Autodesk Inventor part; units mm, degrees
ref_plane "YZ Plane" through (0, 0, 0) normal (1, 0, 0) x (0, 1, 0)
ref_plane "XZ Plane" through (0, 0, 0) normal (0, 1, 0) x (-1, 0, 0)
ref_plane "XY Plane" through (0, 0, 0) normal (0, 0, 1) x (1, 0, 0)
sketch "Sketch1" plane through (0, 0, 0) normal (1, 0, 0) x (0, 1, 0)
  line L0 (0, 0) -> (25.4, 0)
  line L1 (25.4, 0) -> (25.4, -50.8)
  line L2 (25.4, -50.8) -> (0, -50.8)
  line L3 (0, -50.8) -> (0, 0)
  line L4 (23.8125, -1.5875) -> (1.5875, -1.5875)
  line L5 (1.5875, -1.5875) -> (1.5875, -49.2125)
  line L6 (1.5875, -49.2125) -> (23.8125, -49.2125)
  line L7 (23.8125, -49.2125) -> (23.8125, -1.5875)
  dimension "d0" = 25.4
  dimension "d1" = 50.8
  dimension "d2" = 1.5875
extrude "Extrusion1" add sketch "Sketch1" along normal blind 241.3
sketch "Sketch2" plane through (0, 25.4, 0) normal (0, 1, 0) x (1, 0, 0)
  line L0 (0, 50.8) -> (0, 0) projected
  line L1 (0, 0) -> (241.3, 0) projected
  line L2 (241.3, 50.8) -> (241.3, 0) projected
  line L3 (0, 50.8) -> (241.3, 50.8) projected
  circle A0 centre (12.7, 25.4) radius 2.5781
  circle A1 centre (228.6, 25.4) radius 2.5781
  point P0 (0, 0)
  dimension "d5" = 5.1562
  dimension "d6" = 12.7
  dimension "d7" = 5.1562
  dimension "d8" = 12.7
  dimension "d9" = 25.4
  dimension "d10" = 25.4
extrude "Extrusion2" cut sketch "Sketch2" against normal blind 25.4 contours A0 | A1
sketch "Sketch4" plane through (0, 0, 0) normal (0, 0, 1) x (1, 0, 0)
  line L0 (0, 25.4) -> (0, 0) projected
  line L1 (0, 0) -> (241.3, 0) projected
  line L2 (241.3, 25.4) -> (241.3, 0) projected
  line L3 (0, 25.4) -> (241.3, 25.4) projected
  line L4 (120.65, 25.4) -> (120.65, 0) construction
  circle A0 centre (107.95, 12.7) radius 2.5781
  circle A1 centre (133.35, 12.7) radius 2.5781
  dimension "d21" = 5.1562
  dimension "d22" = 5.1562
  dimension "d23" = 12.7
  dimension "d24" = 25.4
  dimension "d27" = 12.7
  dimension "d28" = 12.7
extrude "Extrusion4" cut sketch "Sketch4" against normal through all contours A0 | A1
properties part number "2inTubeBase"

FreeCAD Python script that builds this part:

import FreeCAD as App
import Part
import Sketcher
Q = App.Units.Quantity

doc = App.newDocument("Part")
params = doc.addObject("Spreadsheet::Sheet", "Params")
for row, (alias, value) in enumerate([
    ("sketch1_width", "1 in"),
    ("sketch1_height", "2 in"),
    ("pad1_length", "9.5 in"),
    ("sketch2_diameter", "0.203 in"),
    ("pocket1_length", "1 in"),
    ("sketch3_diameter", "0.203 in"),
], start=1):
    params.set(f"A{row}", alias)
    params.set(f"B{row}", "=" + value)
    params.setAlias(f"B{row}", alias)

body = doc.addObject("PartDesign::Body", "Body")

sketch1 = body.newObject("Sketcher::SketchObject", "Sketch")
sketch1.AttachmentSupport = (doc.getObject("YZ_Plane"), [""])
sketch1.MapMode = "FlatFace"
sketch1.addGeometry([
    Part.LineSegment(App.Vector(25.4, 0, 0), App.Vector(0, 0, 0)),
    Part.LineSegment(App.Vector(0, 0, 0), App.Vector(0, -50.8, 0)),
    Part.LineSegment(App.Vector(0, -50.8, 0), App.Vector(25.4, -50.8, 0)),
    Part.LineSegment(App.Vector(25.4, -50.8, 0), App.Vector(25.4, 0, 0)),
    Part.LineSegment(App.Vector(1.5875, -1.5875, 0), App.Vector(23.8125, -1.5875, 0)),
    Part.LineSegment(App.Vector(23.8125, -1.5875, 0), App.Vector(23.8125, -49.2125, 0)),
    Part.LineSegment(App.Vector(23.8125, -49.2125, 0), App.Vector(1.5875, -49.2125, 0)),
    Part.LineSegment(App.Vector(1.5875, -49.2125, 0), App.Vector(1.5875, -1.5875, 0)),
], False)
sketch1.addConstraint([
    Sketcher.Constraint("Coincident", 0, 2, 1, 1),
    Sketcher.Constraint("Coincident", 1, 2, 2, 1),
    Sketcher.Constraint("Coincident", 2, 2, 3, 1),
    Sketcher.Constraint("Coincident", 3, 2, 0, 1),
    Sketcher.Constraint("Coincident", 4, 2, 5, 1),
    Sketcher.Constraint("Coincident", 5, 2, 6, 1),
    Sketcher.Constraint("Coincident", 6, 2, 7, 1),
    Sketcher.Constraint("Coincident", 7, 2, 4, 1),
    Sketcher.Constraint("Horizontal", 0),
    Sketcher.Constraint("Vertical", 1),
    Sketcher.Constraint("Horizontal", 2),
    Sketcher.Constraint("Vertical", 3),
    Sketcher.Constraint("Horizontal", 4),
    Sketcher.Constraint("Vertical", 5),
    Sketcher.Constraint("Horizontal", 6),
    Sketcher.Constraint("Vertical", 7),
    Sketcher.Constraint("Coincident", 0, 2, -1, 1),
    Sketcher.Constraint("DistanceX", 0, 2, 0, 1, Q("1 in")),
    Sketcher.Constraint("DistanceY", 1, 2, 1, 1, Q("2 in")),
    Sketcher.Constraint("DistanceY", 4, 2, -1, 1, Q("0.0625 in")),
    Sketcher.Constraint("DistanceX", -1, 1, 6, 2, Q("0.0625 in")),
    Sketcher.Constraint("DistanceX", 4, 2, 3, 2, Q("0.0625 in")),
    Sketcher.Constraint("DistanceY", 2, 2, 5, 2, Q("0.0625 in")),
])
sketch1.setExpression("Constraints[17]", "Params.sketch1_width")
sketch1.setExpression("Constraints[18]", "Params.sketch1_height")
pad1 = body.newObject("PartDesign::Pad", "Pad")
pad1.Profile = sketch1
pad1.setExpression("Length", "Params.pad1_length")

sketch2 = body.newObject("Sketcher::SketchObject", "Sketch001")
sketch2.AttachmentSupport = (doc.getObject("XZ_Plane"), [""])
sketch2.MapMode = "FlatFace"
sketch2.AttachmentOffset = App.Placement(App.Vector(0, 0, -1 * 25.4), App.Rotation())
sketch2.addGeometry([
    Part.Circle(App.Vector(12.7, -25.4, 0), App.Vector(0, 0, 1), 2.5781),
    Part.Circle(App.Vector(228.6, -25.4, 0), App.Vector(0, 0, 1), 2.5781),
], False)
sketch2.addConstraint([
    Sketcher.Constraint("Equal", 0, 1),
    Sketcher.Constraint("Horizontal", 0, 3, 1, 3),
    Sketcher.Constraint("Diameter", 0, Q("0.203 in")),
    Sketcher.Constraint("DistanceY", 0, 3, -1, 1, Q("1 in")),
    Sketcher.Constraint("DistanceX", -1, 1, 0, 3, Q("0.5 in")),
    Sketcher.Constraint("DistanceX", -1, 1, 1, 3, Q("9 in")),
])
sketch2.setExpression("Constraints[2]", "Params.sketch2_diameter")
pocket1 = body.newObject("PartDesign::Pocket", "Pocket")
pocket1.Profile = sketch2
pocket1.setExpression("Length", "Params.pocket1_length")
pocket1.Reversed = True

sketch3 = body.newObject("Sketcher::SketchObject", "Sketch002")
sketch3.AttachmentSupport = (doc.getObject("XY_Plane"), [""])
sketch3.MapMode = "FlatFace"
sketch3.addGeometry([
    Part.Circle(App.Vector(107.95, 12.7, 0), App.Vector(0, 0, 1), 2.5781),
    Part.Circle(App.Vector(133.35, 12.7, 0), App.Vector(0, 0, 1), 2.5781),
], False)
sketch3.addConstraint([
    Sketcher.Constraint("Equal", 0, 1),
    Sketcher.Constraint("Horizontal", 0, 3, 1, 3),
    Sketcher.Constraint("Diameter", 0, Q("0.203 in")),
    Sketcher.Constraint("DistanceX", 0, 3, 1, 3, Q("1 in")),
    Sketcher.Constraint("DistanceY", -1, 1, 0, 3, Q("0.5 in")),
    Sketcher.Constraint("DistanceX", -1, 1, 0, 3, Q("4.25 in")),
])
sketch3.setExpression("Constraints[2]", "Params.sketch3_diameter")
pocket2 = body.newObject("PartDesign::Pocket", "Pocket001")
pocket2.Profile = sketch3
pocket2.Type = "ThroughAll"

doc.recompute()
